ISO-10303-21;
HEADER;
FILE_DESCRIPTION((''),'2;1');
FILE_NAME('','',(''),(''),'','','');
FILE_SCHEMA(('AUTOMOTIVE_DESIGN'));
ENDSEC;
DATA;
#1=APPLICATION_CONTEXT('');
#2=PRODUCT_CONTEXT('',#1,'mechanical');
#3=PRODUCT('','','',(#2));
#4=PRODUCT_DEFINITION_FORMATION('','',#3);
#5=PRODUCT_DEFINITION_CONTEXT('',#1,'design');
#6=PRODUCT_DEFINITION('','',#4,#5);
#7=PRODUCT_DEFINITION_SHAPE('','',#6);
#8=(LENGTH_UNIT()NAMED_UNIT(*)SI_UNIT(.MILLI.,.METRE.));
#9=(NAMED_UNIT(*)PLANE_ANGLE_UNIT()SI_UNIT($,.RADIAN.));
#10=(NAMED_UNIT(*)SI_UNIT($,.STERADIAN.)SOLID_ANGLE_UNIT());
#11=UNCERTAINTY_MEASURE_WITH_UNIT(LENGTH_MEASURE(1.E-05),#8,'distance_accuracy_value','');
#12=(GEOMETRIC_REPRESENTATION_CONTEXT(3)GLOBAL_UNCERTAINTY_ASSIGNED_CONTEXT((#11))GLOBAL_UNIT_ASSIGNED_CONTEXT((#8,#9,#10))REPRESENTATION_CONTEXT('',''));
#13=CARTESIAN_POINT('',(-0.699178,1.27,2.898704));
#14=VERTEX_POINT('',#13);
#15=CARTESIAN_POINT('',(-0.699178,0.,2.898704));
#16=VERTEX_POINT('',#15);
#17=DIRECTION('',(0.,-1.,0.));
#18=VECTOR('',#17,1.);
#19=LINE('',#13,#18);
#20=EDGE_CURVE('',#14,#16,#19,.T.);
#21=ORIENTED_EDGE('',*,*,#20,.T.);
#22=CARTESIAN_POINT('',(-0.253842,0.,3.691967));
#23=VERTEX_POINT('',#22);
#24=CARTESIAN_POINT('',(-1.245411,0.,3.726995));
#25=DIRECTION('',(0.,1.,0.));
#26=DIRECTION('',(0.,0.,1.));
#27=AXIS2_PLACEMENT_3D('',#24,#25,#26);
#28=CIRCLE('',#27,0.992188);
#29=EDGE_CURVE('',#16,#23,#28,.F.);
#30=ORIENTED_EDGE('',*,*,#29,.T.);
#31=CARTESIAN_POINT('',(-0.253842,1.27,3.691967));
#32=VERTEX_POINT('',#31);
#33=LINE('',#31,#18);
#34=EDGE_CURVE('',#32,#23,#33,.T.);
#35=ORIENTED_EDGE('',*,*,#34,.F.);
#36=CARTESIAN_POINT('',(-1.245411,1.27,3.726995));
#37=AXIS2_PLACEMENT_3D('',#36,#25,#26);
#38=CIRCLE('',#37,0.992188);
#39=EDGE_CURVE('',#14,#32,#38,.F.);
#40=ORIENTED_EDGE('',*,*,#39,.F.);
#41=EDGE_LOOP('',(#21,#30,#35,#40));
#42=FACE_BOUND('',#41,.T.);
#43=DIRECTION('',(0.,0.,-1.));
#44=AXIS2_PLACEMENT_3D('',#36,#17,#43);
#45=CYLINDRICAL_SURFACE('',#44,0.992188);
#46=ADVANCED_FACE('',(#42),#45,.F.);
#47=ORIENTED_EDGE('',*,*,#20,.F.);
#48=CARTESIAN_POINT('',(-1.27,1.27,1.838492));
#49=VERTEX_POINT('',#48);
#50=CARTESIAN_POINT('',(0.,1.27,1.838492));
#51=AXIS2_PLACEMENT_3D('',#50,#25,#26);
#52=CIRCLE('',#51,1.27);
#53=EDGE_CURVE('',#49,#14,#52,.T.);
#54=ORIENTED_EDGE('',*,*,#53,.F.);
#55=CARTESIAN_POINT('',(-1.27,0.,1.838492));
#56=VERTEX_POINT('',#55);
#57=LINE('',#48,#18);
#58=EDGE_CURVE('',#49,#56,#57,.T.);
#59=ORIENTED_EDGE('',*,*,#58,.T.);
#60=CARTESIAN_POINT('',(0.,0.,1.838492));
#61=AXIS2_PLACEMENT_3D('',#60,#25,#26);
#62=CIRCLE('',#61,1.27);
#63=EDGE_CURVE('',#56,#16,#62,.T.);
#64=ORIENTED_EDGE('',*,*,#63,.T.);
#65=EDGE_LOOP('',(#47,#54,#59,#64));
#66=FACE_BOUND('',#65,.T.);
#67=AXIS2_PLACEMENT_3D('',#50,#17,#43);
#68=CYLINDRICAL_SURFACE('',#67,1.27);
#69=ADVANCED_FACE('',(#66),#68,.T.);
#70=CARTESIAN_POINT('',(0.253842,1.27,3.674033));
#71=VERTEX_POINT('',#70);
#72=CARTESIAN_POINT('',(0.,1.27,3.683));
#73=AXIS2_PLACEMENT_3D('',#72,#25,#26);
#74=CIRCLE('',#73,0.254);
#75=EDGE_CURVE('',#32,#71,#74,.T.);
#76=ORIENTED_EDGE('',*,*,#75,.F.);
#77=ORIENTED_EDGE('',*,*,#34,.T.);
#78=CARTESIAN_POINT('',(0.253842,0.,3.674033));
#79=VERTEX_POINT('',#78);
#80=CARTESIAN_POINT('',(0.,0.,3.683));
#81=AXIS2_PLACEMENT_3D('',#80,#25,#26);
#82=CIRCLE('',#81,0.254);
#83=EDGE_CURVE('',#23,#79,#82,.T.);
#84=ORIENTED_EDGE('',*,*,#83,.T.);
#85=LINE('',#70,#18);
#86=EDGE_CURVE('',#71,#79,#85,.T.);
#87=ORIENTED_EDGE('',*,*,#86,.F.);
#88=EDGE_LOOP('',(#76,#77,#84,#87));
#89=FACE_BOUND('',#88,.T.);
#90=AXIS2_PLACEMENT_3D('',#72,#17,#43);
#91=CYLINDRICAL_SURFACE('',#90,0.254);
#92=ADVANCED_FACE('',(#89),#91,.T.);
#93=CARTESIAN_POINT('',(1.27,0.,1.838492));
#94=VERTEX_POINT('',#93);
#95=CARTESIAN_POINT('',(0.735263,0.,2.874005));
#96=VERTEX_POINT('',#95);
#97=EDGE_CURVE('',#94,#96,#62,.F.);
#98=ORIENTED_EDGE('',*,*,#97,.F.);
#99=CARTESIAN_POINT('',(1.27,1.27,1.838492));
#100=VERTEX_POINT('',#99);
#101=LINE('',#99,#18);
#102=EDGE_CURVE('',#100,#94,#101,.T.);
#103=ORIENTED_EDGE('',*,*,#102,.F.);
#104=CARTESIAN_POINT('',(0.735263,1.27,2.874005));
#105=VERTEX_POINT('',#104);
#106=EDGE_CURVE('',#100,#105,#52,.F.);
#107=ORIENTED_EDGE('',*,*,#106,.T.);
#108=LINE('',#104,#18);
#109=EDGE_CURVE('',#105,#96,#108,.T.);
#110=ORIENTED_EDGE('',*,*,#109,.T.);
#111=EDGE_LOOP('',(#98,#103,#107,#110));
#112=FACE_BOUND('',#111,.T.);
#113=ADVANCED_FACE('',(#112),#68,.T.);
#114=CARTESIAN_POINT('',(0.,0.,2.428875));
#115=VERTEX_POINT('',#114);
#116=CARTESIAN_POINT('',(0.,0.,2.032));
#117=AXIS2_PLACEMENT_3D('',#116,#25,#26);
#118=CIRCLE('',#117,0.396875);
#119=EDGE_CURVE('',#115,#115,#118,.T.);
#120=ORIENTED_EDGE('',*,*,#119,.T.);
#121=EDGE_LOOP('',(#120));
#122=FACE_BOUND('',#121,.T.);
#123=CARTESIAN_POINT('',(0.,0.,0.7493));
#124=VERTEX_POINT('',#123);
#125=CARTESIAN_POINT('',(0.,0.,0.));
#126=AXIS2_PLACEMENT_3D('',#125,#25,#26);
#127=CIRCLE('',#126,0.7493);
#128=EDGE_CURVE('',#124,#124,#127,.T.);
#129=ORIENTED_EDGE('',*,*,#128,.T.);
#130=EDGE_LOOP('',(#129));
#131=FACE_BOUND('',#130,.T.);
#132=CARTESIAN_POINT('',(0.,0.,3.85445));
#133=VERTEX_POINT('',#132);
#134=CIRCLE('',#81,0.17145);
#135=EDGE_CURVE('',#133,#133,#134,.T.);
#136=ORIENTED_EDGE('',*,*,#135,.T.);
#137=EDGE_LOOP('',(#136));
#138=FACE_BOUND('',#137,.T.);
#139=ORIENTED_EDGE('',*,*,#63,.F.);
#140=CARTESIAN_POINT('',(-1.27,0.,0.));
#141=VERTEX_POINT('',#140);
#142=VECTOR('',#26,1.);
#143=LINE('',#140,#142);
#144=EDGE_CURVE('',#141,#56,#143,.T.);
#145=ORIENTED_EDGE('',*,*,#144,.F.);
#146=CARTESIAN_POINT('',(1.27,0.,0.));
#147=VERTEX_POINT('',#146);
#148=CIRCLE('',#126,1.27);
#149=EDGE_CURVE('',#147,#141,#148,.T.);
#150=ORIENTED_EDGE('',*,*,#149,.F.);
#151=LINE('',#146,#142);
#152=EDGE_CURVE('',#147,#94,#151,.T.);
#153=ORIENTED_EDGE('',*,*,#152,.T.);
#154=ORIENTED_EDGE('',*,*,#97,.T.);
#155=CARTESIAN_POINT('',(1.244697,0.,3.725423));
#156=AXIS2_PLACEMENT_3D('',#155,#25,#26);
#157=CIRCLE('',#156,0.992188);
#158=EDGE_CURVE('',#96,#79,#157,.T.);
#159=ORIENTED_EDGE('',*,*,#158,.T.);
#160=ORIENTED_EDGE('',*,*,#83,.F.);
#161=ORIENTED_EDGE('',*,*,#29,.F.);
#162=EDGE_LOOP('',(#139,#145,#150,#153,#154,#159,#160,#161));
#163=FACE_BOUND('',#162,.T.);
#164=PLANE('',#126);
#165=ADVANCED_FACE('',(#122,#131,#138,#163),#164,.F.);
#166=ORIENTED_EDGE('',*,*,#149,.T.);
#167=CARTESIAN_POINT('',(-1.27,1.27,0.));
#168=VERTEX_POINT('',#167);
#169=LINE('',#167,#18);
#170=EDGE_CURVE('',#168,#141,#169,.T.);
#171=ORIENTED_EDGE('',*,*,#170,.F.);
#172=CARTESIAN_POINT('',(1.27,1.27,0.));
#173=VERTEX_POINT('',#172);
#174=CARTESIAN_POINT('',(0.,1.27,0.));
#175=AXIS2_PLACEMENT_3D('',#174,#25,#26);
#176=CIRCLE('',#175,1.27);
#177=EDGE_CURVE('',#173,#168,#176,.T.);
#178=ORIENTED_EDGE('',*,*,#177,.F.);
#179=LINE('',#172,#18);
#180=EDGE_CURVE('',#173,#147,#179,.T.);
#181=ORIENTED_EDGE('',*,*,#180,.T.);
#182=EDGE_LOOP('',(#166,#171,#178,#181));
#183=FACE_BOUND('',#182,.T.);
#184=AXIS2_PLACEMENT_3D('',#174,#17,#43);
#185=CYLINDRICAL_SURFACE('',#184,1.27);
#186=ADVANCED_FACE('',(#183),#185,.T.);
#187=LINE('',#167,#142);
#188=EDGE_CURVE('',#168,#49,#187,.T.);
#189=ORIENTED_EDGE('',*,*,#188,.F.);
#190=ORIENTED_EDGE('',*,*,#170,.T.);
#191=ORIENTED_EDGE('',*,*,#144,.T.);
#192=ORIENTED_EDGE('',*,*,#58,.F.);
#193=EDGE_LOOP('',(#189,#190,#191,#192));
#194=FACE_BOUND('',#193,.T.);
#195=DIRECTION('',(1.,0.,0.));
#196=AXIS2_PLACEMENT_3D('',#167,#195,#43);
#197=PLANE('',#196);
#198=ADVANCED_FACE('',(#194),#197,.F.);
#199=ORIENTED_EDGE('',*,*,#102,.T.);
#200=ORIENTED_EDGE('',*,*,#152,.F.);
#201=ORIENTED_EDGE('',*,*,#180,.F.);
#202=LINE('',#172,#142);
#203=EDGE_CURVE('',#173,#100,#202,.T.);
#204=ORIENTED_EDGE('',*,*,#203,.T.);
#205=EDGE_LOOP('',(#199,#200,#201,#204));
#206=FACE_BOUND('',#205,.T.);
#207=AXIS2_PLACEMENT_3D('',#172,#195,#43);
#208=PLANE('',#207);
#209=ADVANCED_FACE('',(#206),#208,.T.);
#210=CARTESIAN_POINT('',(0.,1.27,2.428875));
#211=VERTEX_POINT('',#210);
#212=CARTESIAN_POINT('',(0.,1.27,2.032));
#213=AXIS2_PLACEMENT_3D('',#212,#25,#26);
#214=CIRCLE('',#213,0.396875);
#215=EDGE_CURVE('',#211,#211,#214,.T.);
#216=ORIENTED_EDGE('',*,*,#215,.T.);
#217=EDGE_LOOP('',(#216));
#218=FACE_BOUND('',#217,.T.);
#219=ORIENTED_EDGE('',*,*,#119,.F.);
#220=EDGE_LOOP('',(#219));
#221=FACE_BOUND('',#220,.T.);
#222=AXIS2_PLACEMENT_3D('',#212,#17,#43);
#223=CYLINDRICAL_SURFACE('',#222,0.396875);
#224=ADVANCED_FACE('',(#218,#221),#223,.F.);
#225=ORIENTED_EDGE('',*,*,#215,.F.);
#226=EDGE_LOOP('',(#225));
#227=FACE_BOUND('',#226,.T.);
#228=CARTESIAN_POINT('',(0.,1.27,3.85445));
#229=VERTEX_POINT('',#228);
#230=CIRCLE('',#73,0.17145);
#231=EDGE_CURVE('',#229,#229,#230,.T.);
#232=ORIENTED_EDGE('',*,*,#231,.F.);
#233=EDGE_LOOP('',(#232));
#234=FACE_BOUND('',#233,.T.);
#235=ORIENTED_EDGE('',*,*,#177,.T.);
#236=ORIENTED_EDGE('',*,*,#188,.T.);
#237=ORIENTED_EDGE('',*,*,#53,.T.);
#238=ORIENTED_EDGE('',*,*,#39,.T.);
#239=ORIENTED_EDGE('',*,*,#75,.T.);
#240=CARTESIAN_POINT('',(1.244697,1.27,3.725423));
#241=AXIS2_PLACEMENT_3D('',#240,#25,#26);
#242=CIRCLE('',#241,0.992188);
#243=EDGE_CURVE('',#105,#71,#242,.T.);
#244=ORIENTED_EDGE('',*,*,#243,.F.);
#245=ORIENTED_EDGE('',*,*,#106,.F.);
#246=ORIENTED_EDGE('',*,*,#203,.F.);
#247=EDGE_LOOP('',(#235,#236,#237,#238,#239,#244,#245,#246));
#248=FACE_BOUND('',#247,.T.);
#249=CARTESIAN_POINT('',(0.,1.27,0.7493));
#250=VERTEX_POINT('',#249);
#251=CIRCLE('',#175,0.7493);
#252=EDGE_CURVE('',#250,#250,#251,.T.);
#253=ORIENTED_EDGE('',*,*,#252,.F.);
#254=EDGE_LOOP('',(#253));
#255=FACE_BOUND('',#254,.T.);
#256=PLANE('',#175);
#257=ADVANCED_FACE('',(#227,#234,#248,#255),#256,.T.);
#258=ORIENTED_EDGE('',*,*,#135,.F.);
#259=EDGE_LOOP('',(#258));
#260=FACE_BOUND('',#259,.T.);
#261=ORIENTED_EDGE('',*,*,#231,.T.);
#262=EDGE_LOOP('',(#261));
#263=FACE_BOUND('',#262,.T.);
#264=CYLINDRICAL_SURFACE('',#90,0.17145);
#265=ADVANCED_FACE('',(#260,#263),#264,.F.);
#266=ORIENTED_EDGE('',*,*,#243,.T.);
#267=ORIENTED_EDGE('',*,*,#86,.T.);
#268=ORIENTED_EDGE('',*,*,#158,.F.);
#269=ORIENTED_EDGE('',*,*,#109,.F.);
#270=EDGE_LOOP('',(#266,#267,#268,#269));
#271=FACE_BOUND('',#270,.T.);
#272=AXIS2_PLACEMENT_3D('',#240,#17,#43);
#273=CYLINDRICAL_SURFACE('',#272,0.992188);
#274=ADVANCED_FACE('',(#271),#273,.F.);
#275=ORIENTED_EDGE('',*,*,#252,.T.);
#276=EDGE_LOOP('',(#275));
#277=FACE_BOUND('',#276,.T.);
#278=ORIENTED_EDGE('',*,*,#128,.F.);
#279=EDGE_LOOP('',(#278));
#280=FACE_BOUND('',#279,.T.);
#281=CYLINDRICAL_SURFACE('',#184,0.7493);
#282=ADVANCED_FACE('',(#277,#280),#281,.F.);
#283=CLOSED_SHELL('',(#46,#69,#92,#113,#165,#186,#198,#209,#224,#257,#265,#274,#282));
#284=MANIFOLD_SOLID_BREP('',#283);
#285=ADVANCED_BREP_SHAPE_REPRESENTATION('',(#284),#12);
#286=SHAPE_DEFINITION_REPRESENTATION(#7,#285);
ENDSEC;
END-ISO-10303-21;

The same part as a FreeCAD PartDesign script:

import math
import FreeCAD as App
import Part
import Sketcher

V = App.Vector
Q = App.Units.Quantity

doc = App.newDocument("Part")
body = doc.addObject("PartDesign::Body", "Body")

# Sketch on XZ plane
sketch1 = body.newObject("Sketcher::SketchObject", "Sketch")
sketch1.AttachmentSupport = (doc.getObject("XZ_Plane"), [""])
sketch1.MapMode = "FlatFace"
sketch1.addGeometry(Part.ArcOfCircle(Part.Circle(V(0, 0, 0), V(0, 0, 1), 1.27), math.radians(180), math.radians(360)), False)
sketch1.addGeometry(Part.LineSegment(V(-1.27, 0, 0), V(-1.27, 1.838492, 0)), False)
sketch1.addGeometry(Part.ArcOfCircle(Part.Circle(V(0, 1.838492, 0), V(0, 0, 1), 1.27), math.radians(123.403641), math.radians(180)), False)
sketch1.addGeometry(Part.ArcOfCircle(Part.Circle(V(-1.245411, 3.726995, 0), V(0, 0, 1), 0.992187), math.radians(-56.596359), math.radians(-2.023169)), False)
sketch1.addGeometry(Part.ArcOfCircle(Part.Circle(V(0, 3.683, 0), V(0, 0, 1), 0.254), math.radians(-2.023169), math.radians(177.976831)), False)
sketch1.addGeometry(Part.ArcOfCircle(Part.Circle(V(1.244697, 3.725423, 0), V(0, 0, 1), 0.992188), math.radians(-177.031036), math.radians(-120.893608)), False)
sketch1.addGeometry(Part.ArcOfCircle(Part.Circle(V(0, 1.838492, 0), V(0, 0, 1), 1.27), math.radians(0), math.radians(54.62346)), False)
sketch1.addGeometry(Part.LineSegment(V(1.27, 1.838492, 0), V(1.27, 0, 0)), False)
sketch1.addGeometry(Part.Circle(V(0, 2.032, 0), V(0, 0, 1), 0.396875), False)
sketch1.addGeometry(Part.Circle(V(0, 0, 0), V(0, 0, 1), 0.7493), False)
sketch1.addGeometry(Part.Circle(V(0, 3.683, 0), V(0, 0, 1), 0.17145), False)
sketch1.addConstraint(Sketcher.Constraint("Tangent", 0, 1, 1, 1))
sketch1.addConstraint(Sketcher.Constraint("Tangent", 1, 2, 2, 2))
sketch1.addConstraint(Sketcher.Constraint("Tangent", 2, 1, 3, 1))
sketch1.addConstraint(Sketcher.Constraint("Tangent", 3, 2, 4, 2))
sketch1.addConstraint(Sketcher.Constraint("Coincident", 4, 1, 5, 1))
sketch1.addConstraint(Sketcher.Constraint("Coincident", 5, 2, 6, 2))
sketch1.addConstraint(Sketcher.Constraint("Tangent", 6, 1, 7, 1))
sketch1.addConstraint(Sketcher.Constraint("Tangent", 7, 2, 0, 2))
sketch1.addConstraint(Sketcher.Constraint("Vertical", 1))
sketch1.addConstraint(Sketcher.Constraint("Vertical", 7))
sketch1.addConstraint(Sketcher.Constraint("Coincident", 0, 3, -1, 1))
sketch1.addConstraint(Sketcher.Constraint("Coincident", 9, 3, -1, 1))
sketch1.addConstraint(Sketcher.Constraint("Coincident", 6, 3, 2, 3))
sketch1.addConstraint(Sketcher.Constraint("Coincident", 10, 3, 4, 3))
sketch1.addConstraint(Sketcher.Constraint("Equal", 0, 2))
sketch1.addConstraint(Sketcher.Constraint("Equal", 3, 5))
sketch1.addConstraint(Sketcher.Constraint("PointOnObject", 4, 3, -2))
sketch1.addConstraint(Sketcher.Constraint("PointOnObject", 8, 3, -2))
sketch1.addConstraint(Sketcher.Constraint("Radius", 0, Q("0.05 in")))
sketch1.addConstraint(Sketcher.Constraint("Radius", 4, Q("0.01 in")))
sketch1.addConstraint(Sketcher.Constraint("Diameter", 8, Q("0.03125 in")))
sketch1.addConstraint(Sketcher.Constraint("Diameter", 9, Q("0.059 in")))
sketch1.addConstraint(Sketcher.Constraint("Diameter", 10, Q("0.0135 in")))
sketch1.addConstraint(Sketcher.Constraint("DistanceY", -1, 1, 8, 3, Q("0.08 in")))
sketch1.addConstraint(Sketcher.Constraint("DistanceY", -1, 1, 4, 3, Q("0.145 in")))
sketch1.addConstraint(Sketcher.Constraint("Radius", 3, 0.992187))
sketch1.addConstraint(Sketcher.Constraint("DistanceY", 1, 1, 1, 2, 1.838492))
sketch1.addConstraint(Sketcher.Constraint("DistanceX", -1, 1, 4, 1, 0.253842))
sketch1.addConstraint(Sketcher.Constraint("DistanceY", 2, 3, 5, 3, 1.886932))
pad1 = body.newObject("PartDesign::Pad", "Pad")
pad1.Profile = sketch1
pad1.Length = Q("0.05 in")
pad1.Reversed = True

doc.recompute()
